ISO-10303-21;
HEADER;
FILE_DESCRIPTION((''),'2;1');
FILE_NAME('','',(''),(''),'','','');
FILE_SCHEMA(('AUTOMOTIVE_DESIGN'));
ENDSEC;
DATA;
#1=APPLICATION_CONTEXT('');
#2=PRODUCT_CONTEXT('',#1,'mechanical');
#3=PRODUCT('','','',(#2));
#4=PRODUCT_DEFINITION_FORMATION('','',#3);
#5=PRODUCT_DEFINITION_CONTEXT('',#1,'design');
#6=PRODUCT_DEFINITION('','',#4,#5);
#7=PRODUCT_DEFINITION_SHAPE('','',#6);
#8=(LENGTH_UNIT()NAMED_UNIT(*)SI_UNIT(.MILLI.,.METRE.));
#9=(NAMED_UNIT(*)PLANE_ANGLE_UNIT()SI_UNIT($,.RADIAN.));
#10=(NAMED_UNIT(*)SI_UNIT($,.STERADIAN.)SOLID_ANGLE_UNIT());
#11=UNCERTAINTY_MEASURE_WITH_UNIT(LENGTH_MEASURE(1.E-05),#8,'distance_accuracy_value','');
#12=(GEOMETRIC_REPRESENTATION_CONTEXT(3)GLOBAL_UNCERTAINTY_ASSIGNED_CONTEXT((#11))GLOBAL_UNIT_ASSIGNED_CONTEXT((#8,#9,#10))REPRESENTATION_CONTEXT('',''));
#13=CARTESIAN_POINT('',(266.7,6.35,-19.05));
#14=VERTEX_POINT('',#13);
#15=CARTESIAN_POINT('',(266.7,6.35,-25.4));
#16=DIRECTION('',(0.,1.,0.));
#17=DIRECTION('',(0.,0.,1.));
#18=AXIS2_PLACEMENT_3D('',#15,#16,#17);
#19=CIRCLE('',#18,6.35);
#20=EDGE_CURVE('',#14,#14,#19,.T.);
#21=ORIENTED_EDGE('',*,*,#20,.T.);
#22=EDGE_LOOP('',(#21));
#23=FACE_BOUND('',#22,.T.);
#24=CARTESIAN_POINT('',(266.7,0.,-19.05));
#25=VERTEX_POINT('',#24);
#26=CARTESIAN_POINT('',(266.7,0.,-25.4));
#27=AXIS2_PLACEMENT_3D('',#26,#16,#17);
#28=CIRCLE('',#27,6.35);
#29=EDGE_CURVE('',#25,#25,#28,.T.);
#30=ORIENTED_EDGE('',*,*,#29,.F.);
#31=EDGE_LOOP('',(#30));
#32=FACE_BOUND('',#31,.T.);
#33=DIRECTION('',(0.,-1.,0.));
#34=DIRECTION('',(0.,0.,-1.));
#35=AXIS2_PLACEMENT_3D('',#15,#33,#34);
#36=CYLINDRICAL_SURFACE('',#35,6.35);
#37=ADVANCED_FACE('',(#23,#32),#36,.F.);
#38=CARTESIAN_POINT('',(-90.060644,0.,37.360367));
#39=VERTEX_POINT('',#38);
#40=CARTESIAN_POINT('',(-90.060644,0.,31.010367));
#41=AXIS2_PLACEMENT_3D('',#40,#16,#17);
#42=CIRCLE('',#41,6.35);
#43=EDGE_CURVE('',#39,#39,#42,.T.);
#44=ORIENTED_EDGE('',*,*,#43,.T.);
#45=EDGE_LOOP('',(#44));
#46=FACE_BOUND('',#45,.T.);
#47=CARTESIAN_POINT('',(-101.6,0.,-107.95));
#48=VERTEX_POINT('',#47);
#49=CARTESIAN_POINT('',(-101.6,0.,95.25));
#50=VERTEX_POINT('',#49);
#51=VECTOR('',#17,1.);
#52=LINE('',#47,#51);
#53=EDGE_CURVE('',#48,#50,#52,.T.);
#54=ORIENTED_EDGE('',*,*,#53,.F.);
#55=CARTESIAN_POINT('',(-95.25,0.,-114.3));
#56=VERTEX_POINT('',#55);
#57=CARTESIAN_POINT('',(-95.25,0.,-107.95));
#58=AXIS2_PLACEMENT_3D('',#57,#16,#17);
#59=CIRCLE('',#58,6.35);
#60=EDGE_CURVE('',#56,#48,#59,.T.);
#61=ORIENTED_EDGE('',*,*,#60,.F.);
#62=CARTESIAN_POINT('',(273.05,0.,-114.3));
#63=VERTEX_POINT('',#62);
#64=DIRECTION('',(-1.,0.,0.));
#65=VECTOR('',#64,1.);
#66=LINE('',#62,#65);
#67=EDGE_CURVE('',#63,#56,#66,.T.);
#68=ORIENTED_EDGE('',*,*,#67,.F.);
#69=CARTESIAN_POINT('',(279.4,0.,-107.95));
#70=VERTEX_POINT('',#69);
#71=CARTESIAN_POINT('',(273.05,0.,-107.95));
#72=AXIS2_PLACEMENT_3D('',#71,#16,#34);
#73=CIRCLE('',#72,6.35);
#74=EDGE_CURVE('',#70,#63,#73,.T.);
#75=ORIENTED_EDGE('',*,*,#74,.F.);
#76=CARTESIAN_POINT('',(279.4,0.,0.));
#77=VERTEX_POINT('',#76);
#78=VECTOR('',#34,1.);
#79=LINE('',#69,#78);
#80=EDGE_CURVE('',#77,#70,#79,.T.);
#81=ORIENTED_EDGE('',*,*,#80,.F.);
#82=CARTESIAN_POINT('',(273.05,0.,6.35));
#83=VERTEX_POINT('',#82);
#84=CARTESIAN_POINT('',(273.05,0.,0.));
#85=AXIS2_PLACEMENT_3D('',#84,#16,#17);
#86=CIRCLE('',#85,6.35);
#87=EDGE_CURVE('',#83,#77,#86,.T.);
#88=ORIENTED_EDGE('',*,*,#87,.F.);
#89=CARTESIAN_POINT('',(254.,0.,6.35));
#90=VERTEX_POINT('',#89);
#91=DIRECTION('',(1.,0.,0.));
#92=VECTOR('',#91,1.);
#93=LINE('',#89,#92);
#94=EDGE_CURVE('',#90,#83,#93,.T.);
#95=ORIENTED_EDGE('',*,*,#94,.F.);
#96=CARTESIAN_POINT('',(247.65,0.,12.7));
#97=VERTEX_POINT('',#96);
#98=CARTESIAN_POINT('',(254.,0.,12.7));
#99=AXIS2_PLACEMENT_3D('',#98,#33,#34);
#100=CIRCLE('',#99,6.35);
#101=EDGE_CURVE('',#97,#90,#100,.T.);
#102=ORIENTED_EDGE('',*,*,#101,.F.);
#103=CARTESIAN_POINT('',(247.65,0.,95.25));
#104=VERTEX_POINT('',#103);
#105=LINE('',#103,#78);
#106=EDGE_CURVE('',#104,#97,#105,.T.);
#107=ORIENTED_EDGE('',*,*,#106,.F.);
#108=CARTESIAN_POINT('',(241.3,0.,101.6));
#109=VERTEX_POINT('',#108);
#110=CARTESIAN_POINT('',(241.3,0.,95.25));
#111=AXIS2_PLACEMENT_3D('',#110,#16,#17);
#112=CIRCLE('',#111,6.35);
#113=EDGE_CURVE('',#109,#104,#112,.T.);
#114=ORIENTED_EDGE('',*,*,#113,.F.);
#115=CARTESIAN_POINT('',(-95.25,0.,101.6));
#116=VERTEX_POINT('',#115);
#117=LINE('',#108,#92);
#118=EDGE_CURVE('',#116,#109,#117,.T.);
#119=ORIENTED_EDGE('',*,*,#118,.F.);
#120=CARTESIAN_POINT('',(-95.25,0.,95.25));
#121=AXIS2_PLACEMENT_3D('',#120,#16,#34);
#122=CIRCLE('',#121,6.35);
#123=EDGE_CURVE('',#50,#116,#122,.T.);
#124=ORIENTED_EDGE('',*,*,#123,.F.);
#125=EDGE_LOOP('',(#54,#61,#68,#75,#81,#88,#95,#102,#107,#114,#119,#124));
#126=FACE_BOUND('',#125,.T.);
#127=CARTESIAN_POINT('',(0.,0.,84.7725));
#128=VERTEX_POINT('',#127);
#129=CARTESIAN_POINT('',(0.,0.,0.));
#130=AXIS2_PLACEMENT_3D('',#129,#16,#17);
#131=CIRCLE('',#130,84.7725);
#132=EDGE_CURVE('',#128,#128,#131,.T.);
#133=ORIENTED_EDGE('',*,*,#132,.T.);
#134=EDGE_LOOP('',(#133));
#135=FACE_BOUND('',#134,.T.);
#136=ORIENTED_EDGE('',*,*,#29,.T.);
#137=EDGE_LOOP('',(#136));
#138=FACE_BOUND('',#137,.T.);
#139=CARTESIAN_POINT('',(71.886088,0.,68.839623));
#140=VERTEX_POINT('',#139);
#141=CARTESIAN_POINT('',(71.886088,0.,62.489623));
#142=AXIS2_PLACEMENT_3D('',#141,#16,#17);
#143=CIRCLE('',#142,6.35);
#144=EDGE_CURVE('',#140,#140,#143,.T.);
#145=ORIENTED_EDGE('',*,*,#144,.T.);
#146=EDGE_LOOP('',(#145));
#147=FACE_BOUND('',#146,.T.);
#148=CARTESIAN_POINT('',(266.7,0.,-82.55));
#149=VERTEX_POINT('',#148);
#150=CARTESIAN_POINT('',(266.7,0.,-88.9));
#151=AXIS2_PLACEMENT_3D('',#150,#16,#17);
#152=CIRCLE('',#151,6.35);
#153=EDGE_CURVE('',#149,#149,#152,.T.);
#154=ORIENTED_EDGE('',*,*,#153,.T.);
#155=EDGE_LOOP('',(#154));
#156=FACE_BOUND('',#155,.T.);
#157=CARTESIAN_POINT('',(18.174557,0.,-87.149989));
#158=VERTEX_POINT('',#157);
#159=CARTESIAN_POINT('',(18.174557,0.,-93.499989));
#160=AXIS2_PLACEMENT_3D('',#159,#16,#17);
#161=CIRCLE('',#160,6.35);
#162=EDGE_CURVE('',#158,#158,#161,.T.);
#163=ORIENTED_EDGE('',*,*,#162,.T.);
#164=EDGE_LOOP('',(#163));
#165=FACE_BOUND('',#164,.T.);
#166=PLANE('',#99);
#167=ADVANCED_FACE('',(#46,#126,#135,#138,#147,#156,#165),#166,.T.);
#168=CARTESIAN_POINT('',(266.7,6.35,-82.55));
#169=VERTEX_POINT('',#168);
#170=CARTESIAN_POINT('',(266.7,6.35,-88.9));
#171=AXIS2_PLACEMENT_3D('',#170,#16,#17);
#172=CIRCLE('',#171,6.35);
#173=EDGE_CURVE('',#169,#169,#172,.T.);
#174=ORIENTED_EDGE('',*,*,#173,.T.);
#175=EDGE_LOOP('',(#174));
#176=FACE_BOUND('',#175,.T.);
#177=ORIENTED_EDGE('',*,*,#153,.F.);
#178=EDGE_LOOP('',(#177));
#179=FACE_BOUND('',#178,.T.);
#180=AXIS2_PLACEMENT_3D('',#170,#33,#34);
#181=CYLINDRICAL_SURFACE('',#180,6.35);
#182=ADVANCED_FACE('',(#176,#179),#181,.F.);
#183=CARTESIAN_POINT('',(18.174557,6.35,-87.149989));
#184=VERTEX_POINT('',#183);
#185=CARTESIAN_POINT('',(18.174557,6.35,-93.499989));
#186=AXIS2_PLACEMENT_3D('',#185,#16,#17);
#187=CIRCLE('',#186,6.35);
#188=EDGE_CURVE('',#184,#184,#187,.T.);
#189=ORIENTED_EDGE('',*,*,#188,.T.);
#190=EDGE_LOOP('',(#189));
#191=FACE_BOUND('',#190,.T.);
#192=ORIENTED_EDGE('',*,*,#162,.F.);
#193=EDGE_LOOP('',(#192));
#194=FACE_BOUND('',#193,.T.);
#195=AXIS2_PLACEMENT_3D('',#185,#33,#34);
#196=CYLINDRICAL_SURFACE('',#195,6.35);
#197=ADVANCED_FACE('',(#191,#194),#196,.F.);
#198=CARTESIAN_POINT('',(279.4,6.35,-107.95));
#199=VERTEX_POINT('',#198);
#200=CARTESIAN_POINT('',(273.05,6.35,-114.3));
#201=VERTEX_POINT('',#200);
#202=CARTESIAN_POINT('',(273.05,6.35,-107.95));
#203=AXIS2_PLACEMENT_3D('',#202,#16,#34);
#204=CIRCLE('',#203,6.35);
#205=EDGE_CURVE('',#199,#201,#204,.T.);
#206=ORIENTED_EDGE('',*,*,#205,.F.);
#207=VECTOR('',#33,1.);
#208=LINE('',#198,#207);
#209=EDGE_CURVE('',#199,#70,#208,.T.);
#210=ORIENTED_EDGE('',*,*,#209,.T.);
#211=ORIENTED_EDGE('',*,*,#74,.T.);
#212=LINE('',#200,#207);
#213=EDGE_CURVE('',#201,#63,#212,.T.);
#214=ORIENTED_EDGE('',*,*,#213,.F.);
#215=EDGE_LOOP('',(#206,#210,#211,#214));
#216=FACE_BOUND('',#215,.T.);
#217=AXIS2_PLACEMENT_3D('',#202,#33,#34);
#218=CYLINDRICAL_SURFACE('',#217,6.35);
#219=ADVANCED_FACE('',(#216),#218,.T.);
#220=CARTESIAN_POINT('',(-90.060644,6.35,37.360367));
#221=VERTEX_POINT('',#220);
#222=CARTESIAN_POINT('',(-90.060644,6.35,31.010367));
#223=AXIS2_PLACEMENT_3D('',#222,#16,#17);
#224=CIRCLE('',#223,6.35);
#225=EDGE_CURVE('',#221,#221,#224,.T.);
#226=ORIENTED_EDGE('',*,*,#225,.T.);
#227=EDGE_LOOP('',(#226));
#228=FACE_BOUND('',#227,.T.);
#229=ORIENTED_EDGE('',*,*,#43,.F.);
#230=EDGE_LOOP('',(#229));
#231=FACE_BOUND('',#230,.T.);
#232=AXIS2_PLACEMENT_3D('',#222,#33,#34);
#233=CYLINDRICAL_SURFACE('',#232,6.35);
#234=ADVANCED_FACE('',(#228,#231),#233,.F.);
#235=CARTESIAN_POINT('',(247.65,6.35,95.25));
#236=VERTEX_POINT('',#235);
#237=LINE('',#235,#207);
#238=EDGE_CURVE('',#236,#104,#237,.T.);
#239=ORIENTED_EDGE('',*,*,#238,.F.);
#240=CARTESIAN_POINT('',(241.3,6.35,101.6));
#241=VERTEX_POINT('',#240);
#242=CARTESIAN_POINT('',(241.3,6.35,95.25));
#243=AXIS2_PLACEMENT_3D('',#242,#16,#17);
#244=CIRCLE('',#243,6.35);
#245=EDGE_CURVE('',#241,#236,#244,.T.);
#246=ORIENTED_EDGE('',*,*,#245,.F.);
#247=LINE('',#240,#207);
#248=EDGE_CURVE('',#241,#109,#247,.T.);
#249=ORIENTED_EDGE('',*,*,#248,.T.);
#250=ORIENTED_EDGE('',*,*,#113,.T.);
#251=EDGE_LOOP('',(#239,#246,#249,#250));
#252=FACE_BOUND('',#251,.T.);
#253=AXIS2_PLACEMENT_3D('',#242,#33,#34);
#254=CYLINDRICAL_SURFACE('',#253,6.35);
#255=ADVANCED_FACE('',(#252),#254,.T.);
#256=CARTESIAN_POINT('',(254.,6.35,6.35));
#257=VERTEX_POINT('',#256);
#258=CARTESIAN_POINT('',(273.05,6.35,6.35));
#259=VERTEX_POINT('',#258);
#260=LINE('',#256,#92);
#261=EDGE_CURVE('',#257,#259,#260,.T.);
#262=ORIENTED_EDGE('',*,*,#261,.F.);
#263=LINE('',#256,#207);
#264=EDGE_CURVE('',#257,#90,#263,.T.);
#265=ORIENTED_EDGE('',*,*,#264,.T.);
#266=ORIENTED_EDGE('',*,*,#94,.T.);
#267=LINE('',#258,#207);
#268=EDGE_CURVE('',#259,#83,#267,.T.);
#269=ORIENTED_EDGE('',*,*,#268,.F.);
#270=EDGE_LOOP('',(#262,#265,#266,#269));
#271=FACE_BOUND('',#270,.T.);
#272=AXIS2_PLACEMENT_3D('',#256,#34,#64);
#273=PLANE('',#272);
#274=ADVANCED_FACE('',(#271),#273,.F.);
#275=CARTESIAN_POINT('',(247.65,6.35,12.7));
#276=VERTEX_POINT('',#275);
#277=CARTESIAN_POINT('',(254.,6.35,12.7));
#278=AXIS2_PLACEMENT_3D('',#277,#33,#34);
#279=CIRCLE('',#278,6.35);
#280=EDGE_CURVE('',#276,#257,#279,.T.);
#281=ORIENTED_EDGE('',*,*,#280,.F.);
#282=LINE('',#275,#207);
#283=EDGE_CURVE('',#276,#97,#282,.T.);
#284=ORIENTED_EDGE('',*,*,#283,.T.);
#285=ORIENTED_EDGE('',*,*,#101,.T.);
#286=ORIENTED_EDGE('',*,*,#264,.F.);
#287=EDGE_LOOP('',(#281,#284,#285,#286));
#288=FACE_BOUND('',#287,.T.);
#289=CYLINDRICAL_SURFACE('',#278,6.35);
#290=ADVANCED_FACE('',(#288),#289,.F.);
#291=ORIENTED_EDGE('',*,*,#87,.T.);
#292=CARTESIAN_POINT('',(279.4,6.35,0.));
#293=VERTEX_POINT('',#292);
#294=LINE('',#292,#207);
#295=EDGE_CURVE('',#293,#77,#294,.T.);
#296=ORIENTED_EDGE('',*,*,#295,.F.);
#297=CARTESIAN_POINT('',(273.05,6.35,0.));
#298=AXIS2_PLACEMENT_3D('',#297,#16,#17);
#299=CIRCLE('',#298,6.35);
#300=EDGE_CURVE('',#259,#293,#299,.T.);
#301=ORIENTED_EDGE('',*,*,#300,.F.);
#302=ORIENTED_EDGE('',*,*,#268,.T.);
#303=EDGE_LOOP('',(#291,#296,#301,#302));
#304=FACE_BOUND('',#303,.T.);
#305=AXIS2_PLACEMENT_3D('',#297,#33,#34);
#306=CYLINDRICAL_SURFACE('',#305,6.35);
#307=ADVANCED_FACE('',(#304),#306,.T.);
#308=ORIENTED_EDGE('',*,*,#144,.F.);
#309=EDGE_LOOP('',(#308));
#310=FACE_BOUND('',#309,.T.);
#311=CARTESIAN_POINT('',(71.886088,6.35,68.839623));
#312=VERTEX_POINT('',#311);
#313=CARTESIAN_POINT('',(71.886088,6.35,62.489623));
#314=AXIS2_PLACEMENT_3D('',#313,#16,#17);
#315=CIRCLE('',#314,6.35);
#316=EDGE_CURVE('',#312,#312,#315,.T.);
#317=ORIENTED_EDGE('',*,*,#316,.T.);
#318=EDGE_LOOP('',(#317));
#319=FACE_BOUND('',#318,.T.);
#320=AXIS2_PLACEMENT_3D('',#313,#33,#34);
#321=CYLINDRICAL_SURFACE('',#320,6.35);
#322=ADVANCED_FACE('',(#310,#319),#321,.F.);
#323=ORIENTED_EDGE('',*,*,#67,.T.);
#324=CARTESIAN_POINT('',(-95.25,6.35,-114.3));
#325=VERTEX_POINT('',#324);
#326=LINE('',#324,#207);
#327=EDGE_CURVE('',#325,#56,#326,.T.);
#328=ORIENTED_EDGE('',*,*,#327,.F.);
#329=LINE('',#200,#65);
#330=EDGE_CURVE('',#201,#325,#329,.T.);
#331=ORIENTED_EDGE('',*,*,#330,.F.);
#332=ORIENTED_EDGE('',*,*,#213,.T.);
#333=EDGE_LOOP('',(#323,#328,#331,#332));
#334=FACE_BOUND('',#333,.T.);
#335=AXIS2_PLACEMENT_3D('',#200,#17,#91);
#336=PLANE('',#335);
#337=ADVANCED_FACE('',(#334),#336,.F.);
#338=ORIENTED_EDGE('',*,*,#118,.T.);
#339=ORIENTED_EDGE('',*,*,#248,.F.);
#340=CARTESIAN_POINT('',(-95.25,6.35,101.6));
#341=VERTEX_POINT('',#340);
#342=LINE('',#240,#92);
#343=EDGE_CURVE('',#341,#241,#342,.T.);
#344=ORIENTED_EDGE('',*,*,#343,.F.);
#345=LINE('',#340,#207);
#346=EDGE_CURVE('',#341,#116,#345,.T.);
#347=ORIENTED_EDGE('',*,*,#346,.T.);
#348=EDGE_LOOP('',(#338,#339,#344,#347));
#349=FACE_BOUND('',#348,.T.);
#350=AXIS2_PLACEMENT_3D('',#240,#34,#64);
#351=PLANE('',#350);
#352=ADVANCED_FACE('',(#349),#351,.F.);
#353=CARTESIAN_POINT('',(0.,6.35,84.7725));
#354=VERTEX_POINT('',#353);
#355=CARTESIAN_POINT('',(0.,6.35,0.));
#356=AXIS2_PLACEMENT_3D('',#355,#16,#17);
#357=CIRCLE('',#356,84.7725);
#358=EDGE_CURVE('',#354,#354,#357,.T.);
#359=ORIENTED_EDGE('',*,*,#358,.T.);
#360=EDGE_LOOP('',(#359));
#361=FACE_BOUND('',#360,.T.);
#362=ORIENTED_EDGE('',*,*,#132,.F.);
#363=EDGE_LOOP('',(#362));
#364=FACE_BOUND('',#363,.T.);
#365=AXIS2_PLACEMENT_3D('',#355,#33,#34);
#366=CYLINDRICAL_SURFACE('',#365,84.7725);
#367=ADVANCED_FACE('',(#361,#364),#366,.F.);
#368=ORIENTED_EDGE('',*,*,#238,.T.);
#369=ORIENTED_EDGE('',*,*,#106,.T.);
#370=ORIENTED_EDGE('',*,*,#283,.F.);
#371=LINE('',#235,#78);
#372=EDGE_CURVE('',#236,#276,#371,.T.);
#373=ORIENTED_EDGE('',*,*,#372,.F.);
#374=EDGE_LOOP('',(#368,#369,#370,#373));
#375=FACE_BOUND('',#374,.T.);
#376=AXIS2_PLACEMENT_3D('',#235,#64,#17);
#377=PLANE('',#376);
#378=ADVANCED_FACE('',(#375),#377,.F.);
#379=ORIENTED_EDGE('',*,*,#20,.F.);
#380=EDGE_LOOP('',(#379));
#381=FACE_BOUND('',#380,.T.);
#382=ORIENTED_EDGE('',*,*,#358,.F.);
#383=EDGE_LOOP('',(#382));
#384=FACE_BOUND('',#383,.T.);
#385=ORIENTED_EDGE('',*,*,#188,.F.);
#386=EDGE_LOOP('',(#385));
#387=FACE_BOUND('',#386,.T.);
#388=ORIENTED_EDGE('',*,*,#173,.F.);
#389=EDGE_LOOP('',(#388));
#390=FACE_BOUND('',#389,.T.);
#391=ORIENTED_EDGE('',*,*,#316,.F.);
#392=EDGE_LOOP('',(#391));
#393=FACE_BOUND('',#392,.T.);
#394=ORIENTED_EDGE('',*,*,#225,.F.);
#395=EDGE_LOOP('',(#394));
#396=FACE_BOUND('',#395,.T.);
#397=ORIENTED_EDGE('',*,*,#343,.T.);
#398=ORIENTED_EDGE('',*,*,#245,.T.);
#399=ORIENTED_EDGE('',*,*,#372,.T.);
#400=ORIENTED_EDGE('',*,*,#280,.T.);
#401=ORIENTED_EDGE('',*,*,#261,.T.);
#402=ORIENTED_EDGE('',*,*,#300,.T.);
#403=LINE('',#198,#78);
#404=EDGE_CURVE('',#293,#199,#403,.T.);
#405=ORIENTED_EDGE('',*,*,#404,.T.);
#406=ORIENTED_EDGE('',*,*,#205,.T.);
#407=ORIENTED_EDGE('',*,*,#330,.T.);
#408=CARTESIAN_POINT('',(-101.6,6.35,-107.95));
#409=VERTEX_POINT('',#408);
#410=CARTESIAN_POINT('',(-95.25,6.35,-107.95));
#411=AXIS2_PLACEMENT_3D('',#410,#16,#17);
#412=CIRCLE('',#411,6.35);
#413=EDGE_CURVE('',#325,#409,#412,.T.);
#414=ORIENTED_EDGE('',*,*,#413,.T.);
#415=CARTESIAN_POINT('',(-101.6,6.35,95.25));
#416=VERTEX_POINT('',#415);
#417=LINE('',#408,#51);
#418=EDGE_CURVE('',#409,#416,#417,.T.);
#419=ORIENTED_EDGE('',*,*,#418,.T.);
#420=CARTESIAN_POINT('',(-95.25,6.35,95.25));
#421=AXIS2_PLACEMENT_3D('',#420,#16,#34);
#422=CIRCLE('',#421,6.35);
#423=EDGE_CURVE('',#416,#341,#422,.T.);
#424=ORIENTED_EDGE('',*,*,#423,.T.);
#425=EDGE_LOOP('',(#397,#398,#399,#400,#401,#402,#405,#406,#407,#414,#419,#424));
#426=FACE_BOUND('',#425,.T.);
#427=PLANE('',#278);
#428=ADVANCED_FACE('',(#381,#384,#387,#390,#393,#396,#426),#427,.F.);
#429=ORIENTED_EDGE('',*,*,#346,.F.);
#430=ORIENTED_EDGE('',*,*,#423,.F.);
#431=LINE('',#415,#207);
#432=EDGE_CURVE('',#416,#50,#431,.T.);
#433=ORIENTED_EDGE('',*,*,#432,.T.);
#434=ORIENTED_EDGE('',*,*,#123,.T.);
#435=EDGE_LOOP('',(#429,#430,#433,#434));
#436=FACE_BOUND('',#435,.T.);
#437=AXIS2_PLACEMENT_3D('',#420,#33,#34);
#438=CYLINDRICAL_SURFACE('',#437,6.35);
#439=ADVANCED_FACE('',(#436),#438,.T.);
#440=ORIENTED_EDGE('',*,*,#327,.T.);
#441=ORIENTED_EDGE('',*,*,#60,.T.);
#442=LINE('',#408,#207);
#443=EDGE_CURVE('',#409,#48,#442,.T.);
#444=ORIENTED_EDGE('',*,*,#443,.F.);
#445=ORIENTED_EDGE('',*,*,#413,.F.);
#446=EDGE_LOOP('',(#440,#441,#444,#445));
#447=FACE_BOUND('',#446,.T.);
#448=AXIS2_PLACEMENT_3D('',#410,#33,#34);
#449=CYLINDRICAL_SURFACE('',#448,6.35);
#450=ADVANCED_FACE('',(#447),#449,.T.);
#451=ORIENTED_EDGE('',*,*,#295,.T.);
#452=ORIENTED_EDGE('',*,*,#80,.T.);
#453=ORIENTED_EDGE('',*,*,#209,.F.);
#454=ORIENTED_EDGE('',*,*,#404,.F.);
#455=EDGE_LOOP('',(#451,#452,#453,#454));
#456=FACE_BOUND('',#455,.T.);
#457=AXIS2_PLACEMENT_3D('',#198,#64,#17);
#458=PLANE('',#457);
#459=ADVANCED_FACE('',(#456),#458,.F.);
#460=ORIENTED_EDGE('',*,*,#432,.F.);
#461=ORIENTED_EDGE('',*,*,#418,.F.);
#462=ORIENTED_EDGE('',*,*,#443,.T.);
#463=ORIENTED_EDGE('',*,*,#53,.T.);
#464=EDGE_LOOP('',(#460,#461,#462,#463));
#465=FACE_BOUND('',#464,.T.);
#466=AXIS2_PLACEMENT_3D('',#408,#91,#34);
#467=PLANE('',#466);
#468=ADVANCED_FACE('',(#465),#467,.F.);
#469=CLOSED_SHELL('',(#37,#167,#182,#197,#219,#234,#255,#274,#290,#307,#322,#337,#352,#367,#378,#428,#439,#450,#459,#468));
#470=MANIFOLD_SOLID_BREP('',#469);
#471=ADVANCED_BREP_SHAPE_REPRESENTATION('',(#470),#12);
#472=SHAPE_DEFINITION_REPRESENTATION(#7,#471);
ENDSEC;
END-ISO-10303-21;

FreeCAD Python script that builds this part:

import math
import FreeCAD as App
import Part
import Sketcher
from FreeCAD import Vector
Q = App.Units.Quantity

doc = App.newDocument("Part")
body = doc.addObject("PartDesign::Body", "Body")

# Sketch on XZ plane
sketch1 = body.newObject("Sketcher::SketchObject", "Sketch")
sketch1.AttachmentSupport = (doc.getObject("XZ_Plane"), [""])
sketch1.MapMode = "FlatFace"
sketch1.addGeometry([
    Part.LineSegment(Vector(273.05, -114.3, 0), Vector(-95.25, -114.3, 0)),  # 0
    Part.ArcOfCircle(Part.Circle(Vector(-95.25, -107.95, 0), Vector(0, 0, 1), 6.35), math.radians(180), math.radians(270)),  # 1
    Part.LineSegment(Vector(-101.6, -107.95, 0), Vector(-101.6, 95.25, 0)),  # 2
    Part.ArcOfCircle(Part.Circle(Vector(-95.25, 95.25, 0), Vector(0, 0, 1), 6.35), math.radians(90), math.radians(180)),  # 3
    Part.LineSegment(Vector(-95.25, 101.6, 0), Vector(241.3, 101.6, 0)),  # 4
    Part.ArcOfCircle(Part.Circle(Vector(241.3, 95.25, 0), Vector(0, 0, 1), 6.35), math.radians(0), math.radians(90)),  # 5
    Part.LineSegment(Vector(247.65, 95.25, 0), Vector(247.65, 12.7, 0)),  # 6
    Part.ArcOfCircle(Part.Circle(Vector(254, 12.7, 0), Vector(0, 0, 1), 6.35), math.radians(180), math.radians(270)),  # 7
    Part.LineSegment(Vector(254, 6.35, 0), Vector(273.05, 6.35, 0)),  # 8
    Part.ArcOfCircle(Part.Circle(Vector(273.05, 0, 0), Vector(0, 0, 1), 6.35), math.radians(0), math.radians(90)),  # 9
    Part.LineSegment(Vector(279.4, 0, 0), Vector(279.4, -107.95, 0)),  # 10
    Part.ArcOfCircle(Part.Circle(Vector(273.05, -107.95, 0), Vector(0, 0, 1), 6.35), math.radians(-90), math.radians(0)),  # 11
    Part.Circle(Vector(71.886088, 62.489623, 0), Vector(0, 0, 1), 6.35),  # 12
    Part.Circle(Vector(-90.060644, 31.010367, 0), Vector(0, 0, 1), 6.35),  # 13
    Part.Circle(Vector(0, 0, 0), Vector(0, 0, 1), 84.7725),  # 14
    Part.Circle(Vector(18.174557, -93.499989, 0), Vector(0, 0, 1), 6.35),  # 15
    Part.Circle(Vector(266.7, -25.4, 0), Vector(0, 0, 1), 6.35),  # 16
    Part.Circle(Vector(266.7, -88.9, 0), Vector(0, 0, 1), 6.35),  # 17
], False)
sketch1.addConstraint([
    Sketcher.Constraint("Tangent", 0, 2, 1, 2),
    Sketcher.Constraint("Tangent", 1, 1, 2, 1),
    Sketcher.Constraint("Tangent", 2, 2, 3, 2),
    Sketcher.Constraint("Tangent", 3, 1, 4, 1),
    Sketcher.Constraint("Tangent", 4, 2, 5, 2),
    Sketcher.Constraint("Tangent", 5, 1, 6, 1),
    Sketcher.Constraint("Tangent", 6, 2, 7, 1),
    Sketcher.Constraint("Tangent", 7, 2, 8, 1),
    Sketcher.Constraint("Tangent", 8, 2, 9, 2),
    Sketcher.Constraint("Tangent", 9, 1, 10, 1),
    Sketcher.Constraint("Tangent", 10, 2, 11, 2),
    Sketcher.Constraint("Tangent", 11, 1, 0, 1),
    Sketcher.Constraint("Horizontal", 0),
    Sketcher.Constraint("Vertical", 2),
    Sketcher.Constraint("Horizontal", 4),
    Sketcher.Constraint("Vertical", 6),
    Sketcher.Constraint("Horizontal", 8),
    Sketcher.Constraint("Vertical", 10),
    Sketcher.Constraint("Coincident", 14, 3, -1, 1),
    Sketcher.Constraint("Equal", 1, 3),
    Sketcher.Constraint("Equal", 3, 5),
    Sketcher.Constraint("Equal", 5, 7),
    Sketcher.Constraint("Equal", 7, 9),
    Sketcher.Constraint("Equal", 9, 11),
    Sketcher.Constraint("Equal", 11, 12),
    Sketcher.Constraint("Equal", 12, 13),
    Sketcher.Constraint("Equal", 13, 15),
    Sketcher.Constraint("Equal", 15, 16),
    Sketcher.Constraint("Equal", 16, 17),
    Sketcher.Constraint("PointOnObject", 9, 3, -1),
    Sketcher.Constraint("Vertical", 16, 3, 17, 3),
    Sketcher.Constraint("Diameter", 12, Q("0.5 in")),
    Sketcher.Constraint("DistanceY", 2, 1, 2, 2, Q("8 in")),
    Sketcher.Constraint("Diameter", 14, Q("6.675 in")),
    Sketcher.Constraint("DistanceX", 0, 2, 0, 1, Q("14.5 in")),
    Sketcher.Constraint("DistanceX", -1, 1, 7, 3, Q("10 in")),
    Sketcher.Constraint("DistanceY", 16, 3, -1, 1, Q("1 in")),
    Sketcher.Constraint("DistanceX", 1, 1, -1, 1, Q("4 in")),
    Sketcher.Constraint("DistanceY", -1, 1, 3, 1, Q("4 in")),
    Sketcher.Constraint("DistanceX", 5, 3, 16, 3, Q("1 in")),
    Sketcher.Constraint("DistanceY", 17, 3, 7, 3, Q("4 in")),
    Sketcher.Constraint("DistanceX", 13, 3, 15, 3, Q("108.235201 mm")),
    Sketcher.Constraint("DistanceY", 15, 3, -1, 1, Q("93.499989 mm")),
    Sketcher.Constraint("DistanceX", 13, 3, 12, 3, Q("161.946732 mm")),
    Sketcher.Constraint("DistanceY", 15, 3, 12, 3, Q("155.989612 mm")),
    Sketcher.Constraint("DistanceX", -1, 1, 12, 3, Q("71.886088 mm")),
    Sketcher.Constraint("DistanceY", -1, 1, 13, 3, Q("31.010367 mm")),
])
pad1 = body.newObject("PartDesign::Pad", "Pad")
pad1.Profile = sketch1
pad1.Length = Q("0.25 in")
pad1.Reversed = True

doc.recompute()
